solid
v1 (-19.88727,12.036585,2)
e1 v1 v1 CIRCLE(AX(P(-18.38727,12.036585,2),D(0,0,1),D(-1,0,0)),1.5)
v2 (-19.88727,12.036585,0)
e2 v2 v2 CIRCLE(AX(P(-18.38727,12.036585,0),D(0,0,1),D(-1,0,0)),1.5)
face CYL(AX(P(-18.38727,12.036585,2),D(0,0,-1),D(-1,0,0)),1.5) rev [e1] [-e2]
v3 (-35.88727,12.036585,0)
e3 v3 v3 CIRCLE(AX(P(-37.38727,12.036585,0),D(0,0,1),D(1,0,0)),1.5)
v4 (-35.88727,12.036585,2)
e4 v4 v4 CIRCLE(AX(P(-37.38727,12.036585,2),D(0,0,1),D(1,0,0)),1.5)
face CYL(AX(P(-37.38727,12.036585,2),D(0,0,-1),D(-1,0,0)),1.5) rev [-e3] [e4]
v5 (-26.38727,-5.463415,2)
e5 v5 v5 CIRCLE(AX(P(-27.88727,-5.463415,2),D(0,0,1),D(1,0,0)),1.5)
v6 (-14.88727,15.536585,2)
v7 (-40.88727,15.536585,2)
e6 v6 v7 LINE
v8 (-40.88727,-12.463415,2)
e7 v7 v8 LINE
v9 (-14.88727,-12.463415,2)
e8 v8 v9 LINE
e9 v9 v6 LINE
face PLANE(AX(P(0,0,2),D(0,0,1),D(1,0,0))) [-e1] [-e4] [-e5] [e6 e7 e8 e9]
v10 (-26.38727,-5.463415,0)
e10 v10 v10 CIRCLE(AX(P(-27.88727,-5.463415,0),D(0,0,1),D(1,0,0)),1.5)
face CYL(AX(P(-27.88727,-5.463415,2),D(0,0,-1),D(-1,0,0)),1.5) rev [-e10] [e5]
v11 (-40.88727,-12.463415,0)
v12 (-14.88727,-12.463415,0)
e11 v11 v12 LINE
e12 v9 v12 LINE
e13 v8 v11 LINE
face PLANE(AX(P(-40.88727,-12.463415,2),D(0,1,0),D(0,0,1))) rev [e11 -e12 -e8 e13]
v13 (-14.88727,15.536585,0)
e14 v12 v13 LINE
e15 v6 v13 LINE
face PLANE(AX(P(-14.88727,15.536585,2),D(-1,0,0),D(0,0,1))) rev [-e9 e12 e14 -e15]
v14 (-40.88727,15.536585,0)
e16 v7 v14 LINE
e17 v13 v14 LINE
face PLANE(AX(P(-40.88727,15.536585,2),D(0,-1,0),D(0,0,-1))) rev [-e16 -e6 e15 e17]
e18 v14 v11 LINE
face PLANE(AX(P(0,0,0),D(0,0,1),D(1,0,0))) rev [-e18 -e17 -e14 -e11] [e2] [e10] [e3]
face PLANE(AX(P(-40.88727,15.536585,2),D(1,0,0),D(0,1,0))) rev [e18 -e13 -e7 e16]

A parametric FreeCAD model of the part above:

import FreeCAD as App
import Part
import Sketcher

V = App.Vector
Q = App.Units.Quantity


def add_polygon(sketch, points):
    """Adds a closed chain of lines whose ends are joined by coincident constraints."""
    first, n = sketch.GeometryCount, len(points)
    for a, b in zip(points, points[1:] + points[:1]):
        sketch.addGeometry(Part.LineSegment(App.Vector(*a, 0), App.Vector(*b, 0)), False)
    for i in range(n):
        sketch.addConstraint(Sketcher.Constraint("Coincident", first + i, 2, first + (i + 1) % n, 1))

doc = App.newDocument("Part")
params = doc.addObject("Spreadsheet::Sheet", "Params")
for row, (alias, value) in enumerate([
    ("sketch1_diameter", "3 mm"),
    ("sketch1_width", "26 mm"),
    ("sketch1_height", "28 mm"),
    ("pad1_length", "2 mm"),
], start=1):
    params.set(f"A{row}", alias)
    params.set(f"B{row}", "=" + value)
    params.setAlias(f"B{row}", alias)

body = doc.addObject("PartDesign::Body", "Body")

sketch1 = body.newObject("Sketcher::SketchObject", "Sketch")
sketch1.AttachmentSupport = (doc.getObject("XY_Plane"), [""])
sketch1.MapMode = "FlatFace"
add_polygon(sketch1, [(-40.9, 15.5), (-40.9, -12.5), (-14.9, -12.5), (-14.9, 15.5)])
sketch1.addGeometry(Part.Circle(V(-27.9, -5.5, 0), V(0, 0, 1), 1.5), False)
sketch1.addGeometry(Part.Circle(V(-37.4, 12, 0), V(0, 0, 1), 1.5), False)
sketch1.addGeometry(Part.Circle(V(-18.4, 12, 0), V(0, 0, 1), 1.5), False)
sketch1.addConstraint(Sketcher.Constraint("Vertical", 0))
sketch1.addConstraint(Sketcher.Constraint("Horizontal", 1))
sketch1.addConstraint(Sketcher.Constraint("Vertical", 2))
sketch1.addConstraint(Sketcher.Constraint("Horizontal", 3))
sketch1.addConstraint(Sketcher.Constraint("Equal", 4, 5))
sketch1.addConstraint(Sketcher.Constraint("Equal", 5, 6))
sketch1.addConstraint(Sketcher.Constraint("Horizontal", 5, 3, 6, 3))
sketch1.addConstraint(Sketcher.Constraint("Diameter", 4, Q("3 mm")))
sketch1.addConstraint(Sketcher.Constraint("DistanceX", 1, 1, 1, 2, Q("26 mm")))
sketch1.addConstraint(Sketcher.Constraint("DistanceY", 0, 2, 0, 1, Q("28 mm")))
sketch1.addConstraint(Sketcher.Constraint("DistanceX", 5, 3, 6, 3, Q("19 mm")))
sketch1.addConstraint(Sketcher.Constraint("DistanceX", 0, 2, 4, 3, Q("13 mm")))
sketch1.addConstraint(Sketcher.Constraint("DistanceY", 0, 2, 4, 3, Q("7 mm")))
sketch1.addConstraint(Sketcher.Constraint("DistanceX", 5, 3, 4, 3, Q("9.5 mm")))
sketch1.addConstraint(Sketcher.Constraint("DistanceY", 4, 3, 5, 3, Q("17.5 mm")))
sketch1.addConstraint(Sketcher.Constraint("DistanceX", 4, 3, -1, 1, Q("27.88727 mm")))
sketch1.addConstraint(Sketcher.Constraint("DistanceY", 4, 3, -1, 1, Q("5.463415 mm")))
sketch1.setExpression("Constraints[11]", "Params.sketch1_diameter")
sketch1.setExpression("Constraints[12]", "Params.sketch1_width")
sketch1.setExpression("Constraints[13]", "Params.sketch1_height")
pad1 = body.newObject("PartDesign::Pad", "Pad")
pad1.Profile = sketch1
pad1.setExpression("Length", "Params.pad1_length")

doc.recompute()
